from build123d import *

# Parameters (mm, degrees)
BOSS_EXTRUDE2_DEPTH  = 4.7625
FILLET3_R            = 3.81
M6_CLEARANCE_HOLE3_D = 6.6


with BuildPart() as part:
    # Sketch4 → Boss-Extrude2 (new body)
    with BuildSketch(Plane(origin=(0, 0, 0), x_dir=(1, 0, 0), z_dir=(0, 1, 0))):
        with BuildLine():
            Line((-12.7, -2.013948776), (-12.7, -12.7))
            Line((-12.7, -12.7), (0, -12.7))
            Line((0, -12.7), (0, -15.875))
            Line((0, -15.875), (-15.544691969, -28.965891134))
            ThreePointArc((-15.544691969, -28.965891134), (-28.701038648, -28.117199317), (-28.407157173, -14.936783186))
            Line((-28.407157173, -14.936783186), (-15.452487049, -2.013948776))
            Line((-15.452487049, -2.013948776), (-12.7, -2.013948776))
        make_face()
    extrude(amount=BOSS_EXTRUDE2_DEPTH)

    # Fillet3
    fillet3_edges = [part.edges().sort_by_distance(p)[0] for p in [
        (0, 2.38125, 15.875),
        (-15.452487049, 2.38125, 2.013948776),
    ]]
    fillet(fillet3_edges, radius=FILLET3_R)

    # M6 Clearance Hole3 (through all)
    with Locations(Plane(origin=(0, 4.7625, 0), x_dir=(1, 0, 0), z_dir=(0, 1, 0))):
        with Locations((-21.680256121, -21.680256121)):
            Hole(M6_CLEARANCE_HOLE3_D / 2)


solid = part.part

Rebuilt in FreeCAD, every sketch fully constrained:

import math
import FreeCAD as App
import Part
import Sketcher

V = App.Vector
Q = App.Units.Quantity


def edges_at(feature, points):
    """Names of the edges that pass closest to the given points."""
    edges = feature.Shape.Edges
    near = lambda p: min(range(len(edges)), key=lambda i: edges[i].distToShape(Part.Vertex(*p))[0])
    return sorted({f"Edge{near(p) + 1}" for p in points})

doc = App.newDocument("Part")
body = doc.addObject("PartDesign::Body", "Body")

sketch1 = body.newObject("Sketcher::SketchObject", "Sketch")
sketch1.AttachmentSupport = (doc.getObject("XZ_Plane"), [""])
sketch1.MapMode = "FlatFace"
sketch1.addGeometry(Part.LineSegment(V(-12.7, 12.7, 0), V(-12.7, 2, 0)), False)
sketch1.addGeometry(Part.LineSegment(V(-12.7, 2, 0), V(-15.5, 2, 0)), False)
sketch1.addGeometry(Part.LineSegment(V(-15.5, 2, 0), V(-28.4, 14.9, 0)), False)
sketch1.addGeometry(Part.ArcOfCircle(Part.Circle(V(-21.7, 21.7, 0), V(0, 0, 1), 9.5), math.radians(50), math.radians(225)), False)
sketch1.addGeometry(Part.LineSegment(V(-15.5, 29, 0), V(0, 15.9, 0)), False)
sketch1.addGeometry(Part.LineSegment(V(0, 15.9, 0), V(0, 12.7, 0)), False)
sketch1.addGeometry(Part.LineSegment(V(0, 12.7, 0), V(-12.7, 12.7, 0)), False)
sketch1.addConstraint(Sketcher.Constraint("Coincident", 0, 2, 1, 1))
sketch1.addConstraint(Sketcher.Constraint("Coincident", 1, 2, 2, 1))
sketch1.addConstraint(Sketcher.Constraint("Tangent", 2, 2, 3, 2))
sketch1.addConstraint(Sketcher.Constraint("Tangent", 3, 1, 4, 1))
sketch1.addConstraint(Sketcher.Constraint("Coincident", 4, 2, 5, 1))
sketch1.addConstraint(Sketcher.Constraint("Coincident", 5, 2, 6, 1))
sketch1.addConstraint(Sketcher.Constraint("Coincident", 6, 2, 0, 1))
sketch1.addConstraint(Sketcher.Constraint("Vertical", 0))
sketch1.addConstraint(Sketcher.Constraint("Horizontal", 1))
sketch1.addConstraint(Sketcher.Constraint("Vertical", 5))
sketch1.addConstraint(Sketcher.Constraint("Horizontal", 6))
sketch1.addConstraint(Sketcher.Constraint("PointOnObject", 4, 2, -2))
sketch1.addConstraint(Sketcher.Constraint("DistanceX", 6, 2, 6, 1, Q("0.5 in")))
sketch1.addConstraint(Sketcher.Constraint("Radius", 3, Q("0.375 in")))
sketch1.addConstraint(Sketcher.Constraint("DistanceY", -1, 1, 5, 2, Q("0.5 in")))
sketch1.addConstraint(Sketcher.Constraint("DistanceY", 5, 2, 5, 1, Q("0.125 in")))
sketch1.addConstraint(Sketcher.Constraint("DistanceY", 1, 2, 3, 1, Q("1.0611001 in")))
sketch1.addConstraint(Sketcher.Constraint("DistanceY", 0, 2, 0, 1, Q("10.686051 mm")))
sketch1.addConstraint(Sketcher.Constraint("DistanceX", 2, 2, 3, 3, Q("6.726901 mm")))
sketch1.addConstraint(Sketcher.Constraint("Distance", 4, Q("20.32262 mm")))
pad1 = body.newObject("PartDesign::Pad", "Pad")
pad1.Profile = sketch1
pad1.Length = Q("0.1875 in")
pad1.Reversed = True
doc.recompute()

fillet = body.newObject("PartDesign::Fillet", "Fillet")
fillet.Base = (pad1, edges_at(pad1, [(0, 2.381, 15.875), (-15.452, 2.381, 2.014)]))
fillet.Radius = Q("0.15 in")

sketch2 = body.newObject("Sketcher::SketchObject", "Sketch001")
sketch2.AttachmentSupport = (doc.getObject("XZ_Plane"), [""])
sketch2.MapMode = "FlatFace"
sketch2.AttachmentOffset = App.Placement(V(0, 0, -0.1875 * 25.4), App.Rotation())
sketch2.addGeometry(Part.Circle(V(-21.7, 21.7, 0), V(0, 0, 1), 3.3), False)
sketch2.addConstraint(Sketcher.Constraint("Diameter", 0, Q("6.6 mm")))
sketch2.addConstraint(Sketcher.Constraint("DistanceX", 0, 3, -1, 1, Q("21.680256 mm")))
sketch2.addConstraint(Sketcher.Constraint("DistanceY", -1, 1, 0, 3, Q("21.680256 mm")))
doc.recompute()
hole = body.newObject("PartDesign::Hole", "Hole")
hole.Profile = sketch2
hole.ThreadType = "None"
hole.Diameter = 6.6
hole.DepthType = "ThroughAll"
hole.Reversed = True

doc.recompute()
